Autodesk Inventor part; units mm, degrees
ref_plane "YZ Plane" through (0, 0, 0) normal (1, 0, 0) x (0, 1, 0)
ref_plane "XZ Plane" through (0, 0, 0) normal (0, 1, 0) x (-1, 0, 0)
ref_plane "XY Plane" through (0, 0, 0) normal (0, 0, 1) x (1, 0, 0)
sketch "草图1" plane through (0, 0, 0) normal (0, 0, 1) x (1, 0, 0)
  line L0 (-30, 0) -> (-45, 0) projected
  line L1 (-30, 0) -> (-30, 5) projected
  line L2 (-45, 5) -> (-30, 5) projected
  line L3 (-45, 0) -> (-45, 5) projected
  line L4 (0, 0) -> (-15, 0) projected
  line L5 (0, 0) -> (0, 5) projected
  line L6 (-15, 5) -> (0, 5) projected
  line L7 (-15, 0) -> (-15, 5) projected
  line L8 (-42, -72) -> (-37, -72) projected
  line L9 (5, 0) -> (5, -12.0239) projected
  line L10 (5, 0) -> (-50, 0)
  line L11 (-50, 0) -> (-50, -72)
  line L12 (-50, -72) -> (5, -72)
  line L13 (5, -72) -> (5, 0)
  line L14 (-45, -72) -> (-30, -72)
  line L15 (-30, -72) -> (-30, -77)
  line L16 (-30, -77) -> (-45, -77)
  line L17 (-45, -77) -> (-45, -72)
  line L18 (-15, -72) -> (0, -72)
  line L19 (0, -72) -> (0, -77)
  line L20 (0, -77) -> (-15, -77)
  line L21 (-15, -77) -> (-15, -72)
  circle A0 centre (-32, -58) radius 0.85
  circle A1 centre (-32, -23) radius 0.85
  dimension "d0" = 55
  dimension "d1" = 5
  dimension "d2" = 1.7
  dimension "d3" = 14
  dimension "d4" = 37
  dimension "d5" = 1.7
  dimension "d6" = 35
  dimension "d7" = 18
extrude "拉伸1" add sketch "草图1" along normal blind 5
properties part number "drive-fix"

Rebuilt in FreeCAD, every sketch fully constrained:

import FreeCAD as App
import Part
import Sketcher
from FreeCAD import Vector
Q = App.Units.Quantity

doc = App.newDocument("Part")
body = doc.addObject("PartDesign::Body", "Body")

# Sketch on XY plane
sketch1 = body.newObject("Sketcher::SketchObject", "Sketch")
sketch1.AttachmentSupport = (doc.getObject("XY_Plane"), [""])
sketch1.MapMode = "FlatFace"
sketch1.addGeometry(Part.LineSegment(Vector(-15, 0, 0), Vector(-30, 0, 0)), False)
sketch1.addGeometry(Part.LineSegment(Vector(-30, 0, 0), Vector(-30, 5, 0)), False)
sketch1.addGeometry(Part.LineSegment(Vector(-30, 5, 0), Vector(-45, 5, 0)), False)
sketch1.addGeometry(Part.LineSegment(Vector(-45, 5, 0), Vector(-45, 0, 0)), False)
sketch1.addGeometry(Part.LineSegment(Vector(-45, 0, 0), Vector(-50, 0, 0)), False)
sketch1.addGeometry(Part.LineSegment(Vector(-50, 0, 0), Vector(-50, -72, 0)), False)
sketch1.addGeometry(Part.LineSegment(Vector(-50, -72, 0), Vector(-45, -72, 0)), False)
sketch1.addGeometry(Part.LineSegment(Vector(-45, -72, 0), Vector(-45, -77, 0)), False)
sketch1.addGeometry(Part.LineSegment(Vector(-45, -77, 0), Vector(-30, -77, 0)), False)
sketch1.addGeometry(Part.LineSegment(Vector(-30, -77, 0), Vector(-30, -72, 0)), False)
sketch1.addGeometry(Part.LineSegment(Vector(-30, -72, 0), Vector(-15, -72, 0)), False)
sketch1.addGeometry(Part.LineSegment(Vector(-15, -72, 0), Vector(-15, -77, 0)), False)
sketch1.addGeometry(Part.LineSegment(Vector(-15, -77, 0), Vector(0, -77, 0)), False)
sketch1.addGeometry(Part.LineSegment(Vector(0, -77, 0), Vector(0, -72, 0)), False)
sketch1.addGeometry(Part.LineSegment(Vector(0, -72, 0), Vector(5, -72, 0)), False)
sketch1.addGeometry(Part.LineSegment(Vector(5, -72, 0), Vector(5, 0, 0)), False)
sketch1.addGeometry(Part.LineSegment(Vector(5, 0, 0), Vector(0, 0, 0)), False)
sketch1.addGeometry(Part.LineSegment(Vector(0, 0, 0), Vector(0, 5, 0)), False)
sketch1.addGeometry(Part.LineSegment(Vector(0, 5, 0), Vector(-15, 5, 0)), False)
sketch1.addGeometry(Part.LineSegment(Vector(-15, 5, 0), Vector(-15, 0, 0)), False)
sketch1.addGeometry(Part.Circle(Vector(-32, -58, 0), Vector(0, 0, 1), 0.8), False)
sketch1.addGeometry(Part.Circle(Vector(-32, -23, 0), Vector(0, 0, 1), 0.8), False)
sketch1.addConstraint(Sketcher.Constraint("Coincident", 0, 2, 1, 1))
sketch1.addConstraint(Sketcher.Constraint("Coincident", 1, 2, 2, 1))
sketch1.addConstraint(Sketcher.Constraint("Coincident", 2, 2, 3, 1))
sketch1.addConstraint(Sketcher.Constraint("Coincident", 3, 2, 4, 1))
sketch1.addConstraint(Sketcher.Constraint("Coincident", 4, 2, 5, 1))
sketch1.addConstraint(Sketcher.Constraint("Coincident", 5, 2, 6, 1))
sketch1.addConstraint(Sketcher.Constraint("Coincident", 6, 2, 7, 1))
sketch1.addConstraint(Sketcher.Constraint("Coincident", 7, 2, 8, 1))
sketch1.addConstraint(Sketcher.Constraint("Coincident", 8, 2, 9, 1))
sketch1.addConstraint(Sketcher.Constraint("Coincident", 9, 2, 10, 1))
sketch1.addConstraint(Sketcher.Constraint("Coincident", 10, 2, 11, 1))
sketch1.addConstraint(Sketcher.Constraint("Coincident", 11, 2, 12, 1))
sketch1.addConstraint(Sketcher.Constraint("Coincident", 12, 2, 13, 1))
sketch1.addConstraint(Sketcher.Constraint("Coincident", 13, 2, 14, 1))
sketch1.addConstraint(Sketcher.Constraint("Coincident", 14, 2, 15, 1))
sketch1.addConstraint(Sketcher.Constraint("Coincident", 15, 2, 16, 1))
sketch1.addConstraint(Sketcher.Constraint("Coincident", 16, 2, 17, 1))
sketch1.addConstraint(Sketcher.Constraint("Coincident", 17, 2, 18, 1))
sketch1.addConstraint(Sketcher.Constraint("Coincident", 18, 2, 19, 1))
sketch1.addConstraint(Sketcher.Constraint("Coincident", 19, 2, 0, 1))
sketch1.addConstraint(Sketcher.Constraint("Horizontal", 0))
sketch1.addConstraint(Sketcher.Constraint("Vertical", 1))
sketch1.addConstraint(Sketcher.Constraint("Horizontal", 2))
sketch1.addConstraint(Sketcher.Constraint("Vertical", 3))
sketch1.addConstraint(Sketcher.Constraint("Horizontal", 4))
sketch1.addConstraint(Sketcher.Constraint("Vertical", 5))
sketch1.addConstraint(Sketcher.Constraint("Horizontal", 6))
sketch1.addConstraint(Sketcher.Constraint("Vertical", 7))
sketch1.addConstraint(Sketcher.Constraint("Horizontal", 8))
sketch1.addConstraint(Sketcher.Constraint("Vertical", 9))
sketch1.addConstraint(Sketcher.Constraint("Horizontal", 10))
sketch1.addConstraint(Sketcher.Constraint("Vertical", 11))
sketch1.addConstraint(Sketcher.Constraint("Horizontal", 12))
sketch1.addConstraint(Sketcher.Constraint("Vertical", 13))
sketch1.addConstraint(Sketcher.Constraint("Horizontal", 14))
sketch1.addConstraint(Sketcher.Constraint("Vertical", 15))
sketch1.addConstraint(Sketcher.Constraint("Horizontal", 16))
sketch1.addConstraint(Sketcher.Constraint("Vertical", 17))
sketch1.addConstraint(Sketcher.Constraint("Horizontal", 18))
sketch1.addConstraint(Sketcher.Constraint("Vertical", 19))
sketch1.addConstraint(Sketcher.Constraint("Coincident", 16, 2, -1, 1))
sketch1.addConstraint(Sketcher.Constraint("Equal", 20, 21))
sketch1.addConstraint(Sketcher.Constraint("PointOnObject", 0, 2, -1))
sketch1.addConstraint(Sketcher.Constraint("PointOnObject", 3, 2, -1))
sketch1.addConstraint(Sketcher.Constraint("PointOnObject", 12, 2, -2))
sketch1.addConstraint(Sketcher.Constraint("Horizontal", 6, 2, 9, 2))
sketch1.addConstraint(Sketcher.Constraint("Horizontal", 8, 2, 11, 2))
sketch1.addConstraint(Sketcher.Constraint("Horizontal", 10, 2, 13, 2))
sketch1.addConstraint(Sketcher.Constraint("Horizontal", 2, 2, 17, 2))
sketch1.addConstraint(Sketcher.Constraint("Vertical", 20, 3, 21, 3))
sketch1.addConstraint(Sketcher.Constraint("Vertical", 3, 2, 6, 2))
sketch1.addConstraint(Sketcher.Constraint("Vertical", 1, 2, 8, 2))
sketch1.addConstraint(Sketcher.Constraint("Vertical", 11, 2, 18, 2))
sketch1.addConstraint(Sketcher.Constraint("Equal", 0, 2))
sketch1.addConstraint(Sketcher.Constraint("Equal", 10, 12))
sketch1.addConstraint(Sketcher.Constraint("Equal", 6, 14))
sketch1.addConstraint(Sketcher.Constraint("Equal", 16, 1))
sketch1.addConstraint(Sketcher.Constraint("Equal", 3, 7))
sketch1.addConstraint(Sketcher.Constraint("Diameter", 20, Q("1.7 mm")))
sketch1.addConstraint(Sketcher.Constraint("DistanceX", 4, 2, 4, 1, Q("5 mm")))
sketch1.addConstraint(Sketcher.Constraint("DistanceY", 20, 3, 21, 3, Q("35 mm")))
sketch1.addConstraint(Sketcher.Constraint("DistanceX", 4, 2, 21, 3, Q("18 mm")))
sketch1.addConstraint(Sketcher.Constraint("DistanceY", 5, 2, 20, 3, Q("14 mm")))
sketch1.addConstraint(Sketcher.Constraint("DistanceX", 9, 2, 14, 2, Q("35 mm")))
sketch1.addConstraint(Sketcher.Constraint("DistanceY", 5, 2, 5, 1, Q("72 mm")))
pad1 = body.newObject("PartDesign::Pad", "Pad")
pad1.Profile = sketch1
pad1.Length = 5

doc.recompute()
